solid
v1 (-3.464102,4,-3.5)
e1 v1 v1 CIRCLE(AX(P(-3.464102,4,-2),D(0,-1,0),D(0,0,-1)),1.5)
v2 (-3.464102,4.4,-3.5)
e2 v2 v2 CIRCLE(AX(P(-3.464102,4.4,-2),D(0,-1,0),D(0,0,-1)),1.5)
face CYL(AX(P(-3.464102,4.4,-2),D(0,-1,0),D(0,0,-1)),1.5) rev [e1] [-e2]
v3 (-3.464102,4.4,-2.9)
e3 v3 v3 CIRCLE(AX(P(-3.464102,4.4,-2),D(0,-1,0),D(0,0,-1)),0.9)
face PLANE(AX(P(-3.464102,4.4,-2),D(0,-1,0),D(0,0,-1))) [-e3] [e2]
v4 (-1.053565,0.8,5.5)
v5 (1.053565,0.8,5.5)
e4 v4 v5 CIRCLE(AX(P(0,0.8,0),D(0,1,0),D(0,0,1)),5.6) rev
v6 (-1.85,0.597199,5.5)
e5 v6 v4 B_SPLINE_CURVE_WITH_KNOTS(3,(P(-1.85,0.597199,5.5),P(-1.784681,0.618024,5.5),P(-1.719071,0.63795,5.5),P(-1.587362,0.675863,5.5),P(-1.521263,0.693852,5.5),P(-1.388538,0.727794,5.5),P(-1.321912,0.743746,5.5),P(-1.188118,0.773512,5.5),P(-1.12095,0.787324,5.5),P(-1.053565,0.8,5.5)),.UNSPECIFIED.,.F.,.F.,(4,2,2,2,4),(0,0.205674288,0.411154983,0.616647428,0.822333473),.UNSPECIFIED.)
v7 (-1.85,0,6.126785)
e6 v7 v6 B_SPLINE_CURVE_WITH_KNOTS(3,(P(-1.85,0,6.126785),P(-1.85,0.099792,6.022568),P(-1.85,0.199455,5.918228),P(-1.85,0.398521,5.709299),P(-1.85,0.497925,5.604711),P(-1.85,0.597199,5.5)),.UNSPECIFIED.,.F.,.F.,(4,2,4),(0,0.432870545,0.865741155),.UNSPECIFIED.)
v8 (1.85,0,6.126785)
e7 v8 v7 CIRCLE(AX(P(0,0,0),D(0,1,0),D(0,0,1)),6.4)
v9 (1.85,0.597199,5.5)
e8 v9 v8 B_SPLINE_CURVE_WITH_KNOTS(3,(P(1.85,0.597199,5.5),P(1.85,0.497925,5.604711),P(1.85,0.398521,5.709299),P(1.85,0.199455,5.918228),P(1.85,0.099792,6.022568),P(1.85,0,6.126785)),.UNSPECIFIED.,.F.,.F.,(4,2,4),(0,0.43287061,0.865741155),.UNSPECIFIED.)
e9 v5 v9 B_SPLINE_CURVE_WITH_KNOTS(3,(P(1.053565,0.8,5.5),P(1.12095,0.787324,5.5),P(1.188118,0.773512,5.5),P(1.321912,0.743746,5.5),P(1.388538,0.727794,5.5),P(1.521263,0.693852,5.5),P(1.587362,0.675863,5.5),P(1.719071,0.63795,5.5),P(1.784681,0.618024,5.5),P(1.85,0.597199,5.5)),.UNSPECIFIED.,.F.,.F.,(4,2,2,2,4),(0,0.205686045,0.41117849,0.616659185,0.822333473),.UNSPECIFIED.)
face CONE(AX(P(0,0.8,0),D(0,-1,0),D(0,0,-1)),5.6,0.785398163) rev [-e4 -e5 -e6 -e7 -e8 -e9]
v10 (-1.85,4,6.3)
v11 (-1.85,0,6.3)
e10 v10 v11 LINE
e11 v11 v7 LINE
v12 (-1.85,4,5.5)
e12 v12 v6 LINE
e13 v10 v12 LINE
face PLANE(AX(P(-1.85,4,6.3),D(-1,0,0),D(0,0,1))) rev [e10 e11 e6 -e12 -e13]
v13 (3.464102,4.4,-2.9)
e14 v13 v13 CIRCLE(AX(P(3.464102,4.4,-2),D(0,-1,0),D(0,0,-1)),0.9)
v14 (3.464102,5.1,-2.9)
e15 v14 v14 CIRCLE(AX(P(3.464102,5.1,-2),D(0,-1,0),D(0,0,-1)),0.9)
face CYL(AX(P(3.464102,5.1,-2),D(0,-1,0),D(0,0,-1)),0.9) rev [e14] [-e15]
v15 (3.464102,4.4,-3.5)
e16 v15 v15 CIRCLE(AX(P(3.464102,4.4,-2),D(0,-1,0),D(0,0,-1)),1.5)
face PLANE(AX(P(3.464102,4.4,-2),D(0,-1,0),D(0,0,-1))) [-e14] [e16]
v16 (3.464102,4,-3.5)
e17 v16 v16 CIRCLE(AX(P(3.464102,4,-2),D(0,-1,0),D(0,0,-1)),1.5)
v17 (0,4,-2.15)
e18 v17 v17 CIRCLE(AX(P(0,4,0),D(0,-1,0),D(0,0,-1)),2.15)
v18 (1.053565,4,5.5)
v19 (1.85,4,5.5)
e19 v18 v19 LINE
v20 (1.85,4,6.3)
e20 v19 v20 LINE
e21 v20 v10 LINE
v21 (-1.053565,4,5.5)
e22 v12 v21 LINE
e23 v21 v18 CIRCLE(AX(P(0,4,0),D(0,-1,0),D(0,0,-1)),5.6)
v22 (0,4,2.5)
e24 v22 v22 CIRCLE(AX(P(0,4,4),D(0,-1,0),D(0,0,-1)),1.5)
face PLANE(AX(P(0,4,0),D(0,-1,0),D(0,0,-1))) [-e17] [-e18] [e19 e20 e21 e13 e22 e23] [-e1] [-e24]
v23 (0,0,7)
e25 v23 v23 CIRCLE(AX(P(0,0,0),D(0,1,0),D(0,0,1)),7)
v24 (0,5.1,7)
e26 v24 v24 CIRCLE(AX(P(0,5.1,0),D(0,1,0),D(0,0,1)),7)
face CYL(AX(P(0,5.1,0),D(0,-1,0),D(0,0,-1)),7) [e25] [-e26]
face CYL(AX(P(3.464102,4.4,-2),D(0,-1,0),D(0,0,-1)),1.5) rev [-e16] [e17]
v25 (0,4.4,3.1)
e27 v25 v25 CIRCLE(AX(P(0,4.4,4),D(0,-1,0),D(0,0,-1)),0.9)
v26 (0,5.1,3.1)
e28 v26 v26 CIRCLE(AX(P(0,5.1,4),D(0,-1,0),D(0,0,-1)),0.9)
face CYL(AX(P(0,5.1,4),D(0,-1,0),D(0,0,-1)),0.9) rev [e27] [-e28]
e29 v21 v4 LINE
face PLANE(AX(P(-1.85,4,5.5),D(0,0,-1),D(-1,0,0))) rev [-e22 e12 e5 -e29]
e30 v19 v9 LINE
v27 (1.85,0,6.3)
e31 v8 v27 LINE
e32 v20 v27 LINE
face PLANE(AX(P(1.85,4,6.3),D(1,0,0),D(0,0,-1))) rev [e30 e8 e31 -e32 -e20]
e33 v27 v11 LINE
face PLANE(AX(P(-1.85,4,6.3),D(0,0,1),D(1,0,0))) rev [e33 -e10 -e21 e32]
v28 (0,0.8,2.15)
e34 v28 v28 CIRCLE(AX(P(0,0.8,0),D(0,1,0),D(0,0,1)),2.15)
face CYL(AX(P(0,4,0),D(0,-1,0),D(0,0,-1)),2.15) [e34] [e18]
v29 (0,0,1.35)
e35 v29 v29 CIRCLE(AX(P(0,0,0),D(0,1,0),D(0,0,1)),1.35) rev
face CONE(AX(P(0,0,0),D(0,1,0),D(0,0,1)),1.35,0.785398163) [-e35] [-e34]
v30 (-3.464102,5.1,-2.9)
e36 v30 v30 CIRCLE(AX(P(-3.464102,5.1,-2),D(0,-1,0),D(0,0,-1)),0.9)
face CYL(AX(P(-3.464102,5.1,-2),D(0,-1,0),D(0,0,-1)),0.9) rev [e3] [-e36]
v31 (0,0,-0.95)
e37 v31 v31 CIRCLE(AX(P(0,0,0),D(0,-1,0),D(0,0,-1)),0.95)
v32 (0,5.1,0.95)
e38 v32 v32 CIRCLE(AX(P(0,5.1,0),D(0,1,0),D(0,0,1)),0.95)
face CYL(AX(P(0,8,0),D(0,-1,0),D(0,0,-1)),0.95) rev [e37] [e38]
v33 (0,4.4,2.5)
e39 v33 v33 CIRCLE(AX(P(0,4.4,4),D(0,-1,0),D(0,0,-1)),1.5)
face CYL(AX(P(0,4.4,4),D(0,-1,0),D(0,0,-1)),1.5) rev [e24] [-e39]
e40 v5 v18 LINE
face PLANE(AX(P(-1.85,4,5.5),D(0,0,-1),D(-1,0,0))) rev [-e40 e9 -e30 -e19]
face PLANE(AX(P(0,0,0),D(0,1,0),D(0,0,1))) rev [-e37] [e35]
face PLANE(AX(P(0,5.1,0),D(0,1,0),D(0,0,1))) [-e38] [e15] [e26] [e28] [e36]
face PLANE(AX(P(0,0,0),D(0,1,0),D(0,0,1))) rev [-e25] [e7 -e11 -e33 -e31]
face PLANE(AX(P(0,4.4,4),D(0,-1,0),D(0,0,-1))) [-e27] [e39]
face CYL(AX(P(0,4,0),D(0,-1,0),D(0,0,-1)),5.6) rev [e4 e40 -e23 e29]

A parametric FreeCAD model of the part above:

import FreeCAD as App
import Part
import Sketcher

V = App.Vector


def edges_at(feature, points):
    """Names of the edges that pass closest to the given points."""
    edges = feature.Shape.Edges
    near = lambda p: min(range(len(edges)), key=lambda i: edges[i].distToShape(Part.Vertex(*p))[0])
    return sorted({f"Edge{near(p) + 1}" for p in points})


def add_polygon(sketch, points):
    """Adds a closed chain of lines whose ends are joined by coincident constraints."""
    first, n = sketch.GeometryCount, len(points)
    for a, b in zip(points, points[1:] + points[:1]):
        sketch.addGeometry(Part.LineSegment(App.Vector(*a, 0), App.Vector(*b, 0)), False)
    for i in range(n):
        sketch.addConstraint(Sketcher.Constraint("Coincident", first + i, 2, first + (i + 1) % n, 1))

doc = App.newDocument("Part")
body = doc.addObject("PartDesign::Body", "Body")

# Sketch on XZ plane
sketch1 = body.newObject("Sketcher::SketchObject", "Sketch")
sketch1.AttachmentSupport = (doc.getObject("XZ_Plane"), [""])
sketch1.MapMode = "FlatFace"
sketch1.addGeometry(Part.Circle(V(0, 0, 0), V(0, 0, 1), 7), False)
sketch1.addConstraint([
    Sketcher.Constraint("Coincident", 0, 3, -1, 1),
    Sketcher.Constraint("Diameter", 0, 14.0),
])
pad1 = body.newObject("PartDesign::Pad", "Pad")
pad1.Profile = sketch1
pad1.Length = 5.1
pad1.Reversed = True

# Sketch on XZ plane
sketch2 = body.newObject("Sketcher::SketchObject", "Sketch001")
sketch2.AttachmentSupport = (doc.getObject("XZ_Plane"), [""])
sketch2.MapMode = "FlatFace"
sketch2.addGeometry(Part.Circle(V(0, 0, 0), V(0, 0, 1), 0.9), False)
sketch2.addConstraint([
    Sketcher.Constraint("Coincident", 0, 3, -1, 1),
    Sketcher.Constraint("Diameter", 0, 1.9),
])
pocket1 = body.newObject("PartDesign::Pocket", "Pocket")
pocket1.Profile = sketch2
pocket1.Length = 8

# Sketch on XZ plane
sketch3 = body.newObject("Sketcher::SketchObject", "Sketch002")
sketch3.AttachmentSupport = (doc.getObject("XZ_Plane"), [""])
sketch3.MapMode = "FlatFace"
sketch3.addGeometry([
    Part.Circle(V(0, 0, 0), V(0, 0, 1), 5.6),
    Part.Circle(V(0, 0, 0), V(0, 0, 1), 2.1),
], False)
sketch3.addConstraint([
    Sketcher.Constraint("Coincident", 0, 3, -1, 1),
    Sketcher.Constraint("Coincident", 1, 3, -1, 1),
    Sketcher.Constraint("Diameter", 0, 11.2),
    Sketcher.Constraint("Diameter", 1, 4.3),
])
pocket2 = body.newObject("PartDesign::Pocket", "Pocket001")
pocket2.Profile = sketch3
pocket2.Length = 4

# Sketch on XZ plane
sketch4 = body.newObject("Sketcher::SketchObject", "Sketch003")
sketch4.AttachmentSupport = (doc.getObject("XZ_Plane"), [""])
sketch4.MapMode = "FlatFace"
add_polygon(sketch4, [(-1.9, 6.3), (-1.9, 5.5), (1.9, 5.5), (1.9, 6.3)])  # lines 0-3
sketch4.addConstraint([
    Sketcher.Constraint("Vertical", 0),
    Sketcher.Constraint("Horizontal", 1),
    Sketcher.Constraint("Vertical", 2),
    Sketcher.Constraint("Horizontal", 3),
    Sketcher.Constraint("DistanceX", 1, 1, 1, 2, 3.7),
    Sketcher.Constraint("DistanceY", 0, 2, 0, 1, 0.8),
    Sketcher.Constraint("DistanceY", -1, 1, 0, 2, 5.5),
    Sketcher.Constraint("DistanceX", 0, 2, -1, 1, 1.85),
])
pocket3 = body.newObject("PartDesign::Pocket", "Pocket002")
pocket3.Profile = sketch4
pocket3.Length = 4
doc.recompute()

chamfer = body.newObject("PartDesign::Chamfer", "Chamfer")
chamfer.Base = (pocket3, edges_at(pocket3, [(2.15, 0, 0)]))
chamfer.Size = 0.8
doc.recompute()

chamfer2 = body.newObject("PartDesign::Chamfer", "Chamfer001")
chamfer2.Base = (chamfer, edges_at(chamfer, [(0, 0, -5.6)]))
chamfer2.Size = 0.8

# Sketch on XZ plane
sketch5 = body.newObject("Sketcher::SketchObject", "Sketch004")
sketch5.AttachmentSupport = (doc.getObject("XZ_Plane"), [""])
sketch5.MapMode = "FlatFace"
sketch5.AttachmentOffset = App.Placement(V(0, 0, -4), App.Rotation())
sketch5.addGeometry([
    Part.Circle(V(0, 4, 0), V(0, 0, 1), 1.5),
    Part.Circle(V(3.5, -2, 0), V(0, 0, 1), 1.5),
    Part.Circle(V(-3.5, -2, 0), V(0, 0, 1), 1.5),
], False)
sketch5.addConstraint([
    Sketcher.Constraint("Equal", 0, 1),
    Sketcher.Constraint("Equal", 1, 2),
    Sketcher.Constraint("Symmetric", 1, 3, 2, 3, -2),
    Sketcher.Constraint("PointOnObject", 0, 3, -2),
    Sketcher.Constraint("Diameter", 0, 3.0),
    Sketcher.Constraint("DistanceY", -1, 1, 0, 3, 4.0),
    Sketcher.Constraint("DistanceY", 1, 3, -1, 1, 2.0),
    Sketcher.Constraint("DistanceX", -1, 1, 1, 3, 3.464102),
])
pocket4 = body.newObject("PartDesign::Pocket", "Pocket003")
pocket4.Profile = sketch5
pocket4.Length = 0.4

# Sketch on XZ plane
sketch6 = body.newObject("Sketcher::SketchObject", "Sketch005")
sketch6.AttachmentSupport = (doc.getObject("XZ_Plane"), [""])
sketch6.MapMode = "FlatFace"
sketch6.AttachmentOffset = App.Placement(V(0, 0, -4), App.Rotation())
sketch6.addGeometry([
    Part.Circle(V(0, 4, 0), V(0, 0, 1), 0.9),
    Part.Circle(V(3.5, -2, 0), V(0, 0, 1), 0.9),
    Part.Circle(V(-3.5, -2, 0), V(0, 0, 1), 0.9),
], False)
sketch6.addConstraint([
    Sketcher.Constraint("Equal", 0, 1),
    Sketcher.Constraint("Equal", 1, 2),
    Sketcher.Constraint("Symmetric", 1, 3, 2, 3, -2),
    Sketcher.Constraint("PointOnObject", 0, 3, -2),
    Sketcher.Constraint("Diameter", 0, 1.8),
    Sketcher.Constraint("DistanceY", -1, 1, 0, 3, 4.0),
    Sketcher.Constraint("DistanceY", 1, 3, -1, 1, 2.0),
    Sketcher.Constraint("DistanceX", -1, 1, 1, 3, 3.464102),
])
pocket5 = body.newObject("PartDesign::Pocket", "Pocket004")
pocket5.Profile = sketch6
pocket5.Type = "ThroughAll"
pocket5.Midplane = True

doc.recompute()
